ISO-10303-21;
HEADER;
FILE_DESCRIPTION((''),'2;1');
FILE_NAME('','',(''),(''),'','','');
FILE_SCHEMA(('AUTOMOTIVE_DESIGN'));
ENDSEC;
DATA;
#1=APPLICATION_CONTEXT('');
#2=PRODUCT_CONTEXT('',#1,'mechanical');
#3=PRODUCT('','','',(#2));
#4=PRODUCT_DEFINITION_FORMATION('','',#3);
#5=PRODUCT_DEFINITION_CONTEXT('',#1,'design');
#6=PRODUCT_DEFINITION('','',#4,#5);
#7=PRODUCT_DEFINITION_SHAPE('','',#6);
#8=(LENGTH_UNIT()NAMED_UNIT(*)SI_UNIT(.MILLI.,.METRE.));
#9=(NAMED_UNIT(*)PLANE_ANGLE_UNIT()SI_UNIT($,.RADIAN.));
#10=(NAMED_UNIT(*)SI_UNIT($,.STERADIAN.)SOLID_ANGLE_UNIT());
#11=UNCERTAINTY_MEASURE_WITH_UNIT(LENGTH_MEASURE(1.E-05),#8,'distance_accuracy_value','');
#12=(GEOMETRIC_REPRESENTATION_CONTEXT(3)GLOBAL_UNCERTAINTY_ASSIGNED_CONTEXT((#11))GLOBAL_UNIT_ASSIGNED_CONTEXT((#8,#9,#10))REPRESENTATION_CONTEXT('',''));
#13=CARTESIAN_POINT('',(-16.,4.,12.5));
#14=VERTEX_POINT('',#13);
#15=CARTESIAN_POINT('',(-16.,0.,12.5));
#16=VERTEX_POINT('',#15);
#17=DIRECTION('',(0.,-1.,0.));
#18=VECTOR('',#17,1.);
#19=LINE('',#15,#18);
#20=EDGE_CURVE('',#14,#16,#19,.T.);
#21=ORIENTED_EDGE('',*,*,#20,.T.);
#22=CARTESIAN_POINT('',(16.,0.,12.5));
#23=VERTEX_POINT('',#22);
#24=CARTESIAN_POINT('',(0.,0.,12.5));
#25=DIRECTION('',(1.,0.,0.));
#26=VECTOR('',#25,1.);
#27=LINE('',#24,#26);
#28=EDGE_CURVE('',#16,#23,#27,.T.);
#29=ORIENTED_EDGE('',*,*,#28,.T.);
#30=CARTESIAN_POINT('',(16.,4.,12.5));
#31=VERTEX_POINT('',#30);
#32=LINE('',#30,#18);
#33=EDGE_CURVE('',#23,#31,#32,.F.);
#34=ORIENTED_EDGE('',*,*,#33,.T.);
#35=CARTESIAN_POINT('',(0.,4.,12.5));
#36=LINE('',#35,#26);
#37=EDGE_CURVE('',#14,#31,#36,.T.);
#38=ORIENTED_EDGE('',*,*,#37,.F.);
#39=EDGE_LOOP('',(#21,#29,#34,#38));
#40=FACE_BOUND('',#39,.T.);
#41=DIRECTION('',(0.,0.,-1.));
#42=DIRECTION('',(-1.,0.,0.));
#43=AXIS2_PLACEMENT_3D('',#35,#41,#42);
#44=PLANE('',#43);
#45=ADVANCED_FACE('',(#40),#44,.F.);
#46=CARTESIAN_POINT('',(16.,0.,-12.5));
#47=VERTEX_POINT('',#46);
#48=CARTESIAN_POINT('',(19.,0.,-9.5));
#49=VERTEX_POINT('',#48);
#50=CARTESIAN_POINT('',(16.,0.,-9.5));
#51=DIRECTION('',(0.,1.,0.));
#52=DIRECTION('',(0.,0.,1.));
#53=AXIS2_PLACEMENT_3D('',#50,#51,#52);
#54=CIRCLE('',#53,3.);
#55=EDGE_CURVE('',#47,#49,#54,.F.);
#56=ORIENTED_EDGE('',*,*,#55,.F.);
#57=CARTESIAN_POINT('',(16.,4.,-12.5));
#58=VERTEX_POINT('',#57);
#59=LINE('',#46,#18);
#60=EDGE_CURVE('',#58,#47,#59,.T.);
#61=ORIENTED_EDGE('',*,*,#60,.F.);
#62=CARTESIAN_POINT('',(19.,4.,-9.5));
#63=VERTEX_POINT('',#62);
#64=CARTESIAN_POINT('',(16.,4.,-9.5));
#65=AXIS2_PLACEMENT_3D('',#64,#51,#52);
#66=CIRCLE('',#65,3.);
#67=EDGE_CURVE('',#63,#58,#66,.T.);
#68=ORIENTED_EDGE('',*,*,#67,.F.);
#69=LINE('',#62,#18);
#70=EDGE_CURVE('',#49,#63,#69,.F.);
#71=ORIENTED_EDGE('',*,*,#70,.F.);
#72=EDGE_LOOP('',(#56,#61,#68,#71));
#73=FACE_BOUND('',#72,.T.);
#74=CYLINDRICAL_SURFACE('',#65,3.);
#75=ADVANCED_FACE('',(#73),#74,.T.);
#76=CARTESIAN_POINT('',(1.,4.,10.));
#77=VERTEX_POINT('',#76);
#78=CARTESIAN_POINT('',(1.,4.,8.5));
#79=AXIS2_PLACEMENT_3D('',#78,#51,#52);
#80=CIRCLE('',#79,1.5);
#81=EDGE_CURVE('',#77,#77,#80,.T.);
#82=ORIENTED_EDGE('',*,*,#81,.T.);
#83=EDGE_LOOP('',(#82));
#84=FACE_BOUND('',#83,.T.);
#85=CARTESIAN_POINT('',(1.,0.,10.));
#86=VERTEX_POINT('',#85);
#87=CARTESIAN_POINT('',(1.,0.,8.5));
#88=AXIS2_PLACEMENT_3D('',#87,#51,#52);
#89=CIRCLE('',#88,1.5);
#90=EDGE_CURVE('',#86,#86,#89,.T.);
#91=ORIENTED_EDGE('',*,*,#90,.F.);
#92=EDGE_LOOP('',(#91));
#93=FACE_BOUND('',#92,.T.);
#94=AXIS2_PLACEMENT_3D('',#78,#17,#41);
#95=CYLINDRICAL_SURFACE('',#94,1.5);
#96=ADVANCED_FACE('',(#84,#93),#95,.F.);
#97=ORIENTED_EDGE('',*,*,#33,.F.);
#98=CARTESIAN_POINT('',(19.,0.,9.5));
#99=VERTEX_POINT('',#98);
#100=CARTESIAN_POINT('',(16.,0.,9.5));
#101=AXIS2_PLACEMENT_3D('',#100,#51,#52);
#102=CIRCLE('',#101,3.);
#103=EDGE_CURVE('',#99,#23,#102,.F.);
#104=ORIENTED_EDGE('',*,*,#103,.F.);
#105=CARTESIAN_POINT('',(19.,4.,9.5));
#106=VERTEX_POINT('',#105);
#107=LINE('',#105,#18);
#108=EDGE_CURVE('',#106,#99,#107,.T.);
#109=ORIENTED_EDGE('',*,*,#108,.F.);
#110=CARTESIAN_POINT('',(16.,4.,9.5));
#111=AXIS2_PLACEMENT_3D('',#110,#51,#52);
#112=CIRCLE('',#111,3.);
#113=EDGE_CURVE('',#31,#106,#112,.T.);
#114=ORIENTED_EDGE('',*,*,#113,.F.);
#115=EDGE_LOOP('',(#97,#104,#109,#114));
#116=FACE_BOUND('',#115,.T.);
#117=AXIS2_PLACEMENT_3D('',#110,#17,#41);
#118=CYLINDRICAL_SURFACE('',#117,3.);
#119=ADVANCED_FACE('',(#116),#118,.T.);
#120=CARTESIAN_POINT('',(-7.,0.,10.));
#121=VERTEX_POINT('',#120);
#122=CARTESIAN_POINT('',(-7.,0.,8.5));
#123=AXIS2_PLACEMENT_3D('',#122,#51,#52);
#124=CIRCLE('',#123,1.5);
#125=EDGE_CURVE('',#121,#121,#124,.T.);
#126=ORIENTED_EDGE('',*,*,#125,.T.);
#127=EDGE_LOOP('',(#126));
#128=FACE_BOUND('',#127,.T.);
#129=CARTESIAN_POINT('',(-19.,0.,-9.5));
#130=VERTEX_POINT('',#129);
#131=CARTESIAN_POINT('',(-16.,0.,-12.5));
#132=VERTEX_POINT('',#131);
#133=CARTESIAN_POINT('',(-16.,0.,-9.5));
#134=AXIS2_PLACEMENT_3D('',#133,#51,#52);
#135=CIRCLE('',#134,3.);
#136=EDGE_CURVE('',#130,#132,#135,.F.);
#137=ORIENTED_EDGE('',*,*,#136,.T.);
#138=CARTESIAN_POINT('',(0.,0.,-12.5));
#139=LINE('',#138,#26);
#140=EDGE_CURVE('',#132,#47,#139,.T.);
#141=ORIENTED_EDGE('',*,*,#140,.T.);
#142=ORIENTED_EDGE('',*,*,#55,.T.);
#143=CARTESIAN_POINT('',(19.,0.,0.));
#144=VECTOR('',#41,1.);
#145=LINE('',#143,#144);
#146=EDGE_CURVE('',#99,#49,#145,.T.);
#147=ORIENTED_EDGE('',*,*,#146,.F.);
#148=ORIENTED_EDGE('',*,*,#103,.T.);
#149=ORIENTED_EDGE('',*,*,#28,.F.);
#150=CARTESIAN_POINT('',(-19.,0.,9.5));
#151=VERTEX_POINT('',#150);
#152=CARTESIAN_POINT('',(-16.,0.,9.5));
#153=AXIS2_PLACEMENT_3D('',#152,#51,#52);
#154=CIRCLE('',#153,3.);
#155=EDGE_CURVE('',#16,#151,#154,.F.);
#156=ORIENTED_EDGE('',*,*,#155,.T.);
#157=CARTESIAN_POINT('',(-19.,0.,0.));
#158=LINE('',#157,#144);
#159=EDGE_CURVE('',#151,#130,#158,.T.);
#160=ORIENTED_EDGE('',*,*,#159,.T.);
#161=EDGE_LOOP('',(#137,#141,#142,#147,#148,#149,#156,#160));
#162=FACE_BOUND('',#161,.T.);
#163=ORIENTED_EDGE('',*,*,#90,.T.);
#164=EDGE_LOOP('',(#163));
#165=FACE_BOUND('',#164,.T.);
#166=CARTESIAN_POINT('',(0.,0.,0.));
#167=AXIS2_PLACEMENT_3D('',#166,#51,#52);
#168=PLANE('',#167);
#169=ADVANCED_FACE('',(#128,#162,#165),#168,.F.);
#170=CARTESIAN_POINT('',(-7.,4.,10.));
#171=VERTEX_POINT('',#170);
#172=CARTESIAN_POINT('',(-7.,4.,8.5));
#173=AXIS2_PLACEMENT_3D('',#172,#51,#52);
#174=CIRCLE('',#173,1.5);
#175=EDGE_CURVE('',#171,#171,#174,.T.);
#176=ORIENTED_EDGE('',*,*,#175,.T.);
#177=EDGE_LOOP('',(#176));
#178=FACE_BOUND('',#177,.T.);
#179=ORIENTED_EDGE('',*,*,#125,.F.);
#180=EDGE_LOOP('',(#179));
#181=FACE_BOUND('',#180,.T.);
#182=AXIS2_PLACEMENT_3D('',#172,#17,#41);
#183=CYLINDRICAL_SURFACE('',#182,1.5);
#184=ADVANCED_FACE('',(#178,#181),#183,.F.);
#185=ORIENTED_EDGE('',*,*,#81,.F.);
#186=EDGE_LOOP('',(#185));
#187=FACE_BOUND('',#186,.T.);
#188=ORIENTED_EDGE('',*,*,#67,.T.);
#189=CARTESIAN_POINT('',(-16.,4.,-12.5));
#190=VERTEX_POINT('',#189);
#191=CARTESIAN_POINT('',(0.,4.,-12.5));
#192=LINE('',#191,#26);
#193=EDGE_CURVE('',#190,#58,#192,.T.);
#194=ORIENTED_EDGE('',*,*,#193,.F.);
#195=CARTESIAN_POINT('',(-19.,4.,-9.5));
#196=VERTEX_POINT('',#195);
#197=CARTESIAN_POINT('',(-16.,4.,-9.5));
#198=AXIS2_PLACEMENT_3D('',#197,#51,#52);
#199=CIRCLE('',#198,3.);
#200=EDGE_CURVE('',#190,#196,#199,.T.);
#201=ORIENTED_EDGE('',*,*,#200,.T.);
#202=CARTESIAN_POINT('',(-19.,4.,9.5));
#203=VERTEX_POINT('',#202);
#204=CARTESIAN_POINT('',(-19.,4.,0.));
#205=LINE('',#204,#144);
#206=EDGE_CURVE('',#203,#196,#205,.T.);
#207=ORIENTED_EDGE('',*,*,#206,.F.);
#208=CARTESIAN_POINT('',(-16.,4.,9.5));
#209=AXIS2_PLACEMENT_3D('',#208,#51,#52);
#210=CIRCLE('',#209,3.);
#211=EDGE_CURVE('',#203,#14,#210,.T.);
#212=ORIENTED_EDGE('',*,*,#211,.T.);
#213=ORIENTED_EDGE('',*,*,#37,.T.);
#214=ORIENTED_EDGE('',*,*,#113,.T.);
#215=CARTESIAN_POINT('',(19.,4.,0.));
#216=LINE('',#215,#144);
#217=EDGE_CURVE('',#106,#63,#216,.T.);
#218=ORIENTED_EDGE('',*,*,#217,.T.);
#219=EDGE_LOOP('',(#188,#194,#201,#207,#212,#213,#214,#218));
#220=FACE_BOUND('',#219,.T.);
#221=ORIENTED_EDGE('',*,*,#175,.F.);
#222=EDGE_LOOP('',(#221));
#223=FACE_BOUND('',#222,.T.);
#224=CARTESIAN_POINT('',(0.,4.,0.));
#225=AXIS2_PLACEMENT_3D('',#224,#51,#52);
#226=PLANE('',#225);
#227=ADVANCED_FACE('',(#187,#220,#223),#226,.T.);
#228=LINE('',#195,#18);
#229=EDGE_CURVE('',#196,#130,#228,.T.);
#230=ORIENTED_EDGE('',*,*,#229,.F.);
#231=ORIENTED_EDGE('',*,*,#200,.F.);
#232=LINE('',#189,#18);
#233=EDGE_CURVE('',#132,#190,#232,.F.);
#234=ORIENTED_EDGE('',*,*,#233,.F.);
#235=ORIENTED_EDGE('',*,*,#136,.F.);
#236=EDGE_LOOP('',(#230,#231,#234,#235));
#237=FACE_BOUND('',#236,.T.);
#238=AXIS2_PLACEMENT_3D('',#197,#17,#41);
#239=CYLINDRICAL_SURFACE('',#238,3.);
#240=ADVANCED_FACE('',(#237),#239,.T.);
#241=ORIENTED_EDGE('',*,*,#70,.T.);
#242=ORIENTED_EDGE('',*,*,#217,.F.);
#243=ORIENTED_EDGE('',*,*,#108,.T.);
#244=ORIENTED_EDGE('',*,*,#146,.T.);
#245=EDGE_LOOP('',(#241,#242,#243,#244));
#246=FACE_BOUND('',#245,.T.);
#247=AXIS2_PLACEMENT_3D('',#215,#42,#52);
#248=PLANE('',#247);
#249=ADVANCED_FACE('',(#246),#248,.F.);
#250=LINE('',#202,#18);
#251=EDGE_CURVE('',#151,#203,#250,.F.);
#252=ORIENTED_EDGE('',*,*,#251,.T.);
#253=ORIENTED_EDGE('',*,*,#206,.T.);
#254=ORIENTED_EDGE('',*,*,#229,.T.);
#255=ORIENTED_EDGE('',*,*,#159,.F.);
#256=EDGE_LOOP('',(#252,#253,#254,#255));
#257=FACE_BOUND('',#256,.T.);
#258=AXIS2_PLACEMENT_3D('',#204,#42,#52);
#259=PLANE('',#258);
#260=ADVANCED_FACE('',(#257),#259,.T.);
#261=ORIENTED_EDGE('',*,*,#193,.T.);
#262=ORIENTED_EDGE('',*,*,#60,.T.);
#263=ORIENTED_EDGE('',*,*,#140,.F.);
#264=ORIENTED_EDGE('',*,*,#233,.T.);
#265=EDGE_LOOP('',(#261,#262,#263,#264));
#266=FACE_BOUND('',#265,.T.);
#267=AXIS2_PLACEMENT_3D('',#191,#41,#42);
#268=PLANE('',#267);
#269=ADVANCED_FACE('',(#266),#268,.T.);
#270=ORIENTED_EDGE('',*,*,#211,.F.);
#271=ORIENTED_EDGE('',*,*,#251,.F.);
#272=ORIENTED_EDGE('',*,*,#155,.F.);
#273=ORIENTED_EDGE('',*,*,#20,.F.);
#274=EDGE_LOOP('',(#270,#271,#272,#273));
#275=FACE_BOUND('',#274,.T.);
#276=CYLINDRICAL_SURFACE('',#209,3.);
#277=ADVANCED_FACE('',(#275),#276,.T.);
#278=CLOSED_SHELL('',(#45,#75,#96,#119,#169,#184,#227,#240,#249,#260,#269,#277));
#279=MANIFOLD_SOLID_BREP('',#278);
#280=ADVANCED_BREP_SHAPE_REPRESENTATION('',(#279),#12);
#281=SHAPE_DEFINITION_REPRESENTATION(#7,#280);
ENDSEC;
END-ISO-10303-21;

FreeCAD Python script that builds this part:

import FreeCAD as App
import Part
import Sketcher
from FreeCAD import Vector
Q = App.Units.Quantity


def edges_at(feature, points):
    """Names of the edges that pass closest to the given points."""
    edges = feature.Shape.Edges
    near = lambda p: min(range(len(edges)), key=lambda i: edges[i].distToShape(Part.Vertex(*p))[0])
    return sorted({f"Edge{near(p) + 1}" for p in points})

doc = App.newDocument("Part")
body = doc.addObject("PartDesign::Body", "Body")

sketch1 = doc.addObject("Sketcher::SketchObject", "Sketch")
body.addObject(sketch1)
sketch1.AttachmentSupport = (doc.XZ_Plane, [""])
sketch1.MapMode = "FlatFace"
sketch1.addGeometry([
    Part.LineSegment(Vector(-19, -12.5, 0), Vector(-19, 12.5, 0)),
    Part.LineSegment(Vector(-19, 12.5, 0), Vector(19, 12.5, 0)),
    Part.LineSegment(Vector(19, 12.5, 0), Vector(19, -12.5, 0)),
    Part.LineSegment(Vector(19, -12.5, 0), Vector(-19, -12.5, 0)),
    Part.Circle(Vector(-7, 8.5, 0), Vector(0, 0, 1), 1.5),
    Part.Circle(Vector(1, 8.5, 0), Vector(0, 0, 1), 1.5),
], False)
sketch1.addConstraint([
    Sketcher.Constraint("Coincident", 0, 2, 1, 1),
    Sketcher.Constraint("Coincident", 1, 2, 2, 1),
    Sketcher.Constraint("Coincident", 2, 2, 3, 1),
    Sketcher.Constraint("Coincident", 3, 2, 0, 1),
    Sketcher.Constraint("Vertical", 0),
    Sketcher.Constraint("Horizontal", 1),
    Sketcher.Constraint("Vertical", 2),
    Sketcher.Constraint("Horizontal", 3),
    Sketcher.Constraint("Equal", 4, 5),
    Sketcher.Constraint("Symmetric", 0, 2, 2, 2, -1, 1),
    Sketcher.Constraint("Horizontal", 4, 3, 5, 3),
    Sketcher.Constraint("Diameter", 4, Q("3 mm")),
    Sketcher.Constraint("DistanceX", 1, 1, 1, 2, Q("38 mm")),
    Sketcher.Constraint("DistanceY", 0, 1, 0, 2, Q("25 mm")),
    Sketcher.Constraint("DistanceX", 4, 3, -1, 1, Q("7 mm")),
    Sketcher.Constraint("DistanceX", -1, 1, 5, 3, Q("1 mm")),
    Sketcher.Constraint("DistanceY", 4, 3, 0, 2, Q("4 mm")),
])
pad1 = doc.addObject("PartDesign::Pad", "Pad")
body.addObject(pad1)
pad1.Profile = sketch1
pad1.Length = 4
pad1.Reversed = True
doc.recompute()

fillet = doc.addObject("PartDesign::Fillet", "Fillet")
body.addObject(fillet)
fillet.Base = (pad1, edges_at(pad1, [
    (-19, 2, 12.5),
    (-19, 2, -12.5),
    (19, 2, -12.5),
    (19, 2, 12.5),
]))
fillet.Radius = 3

doc.recompute()
